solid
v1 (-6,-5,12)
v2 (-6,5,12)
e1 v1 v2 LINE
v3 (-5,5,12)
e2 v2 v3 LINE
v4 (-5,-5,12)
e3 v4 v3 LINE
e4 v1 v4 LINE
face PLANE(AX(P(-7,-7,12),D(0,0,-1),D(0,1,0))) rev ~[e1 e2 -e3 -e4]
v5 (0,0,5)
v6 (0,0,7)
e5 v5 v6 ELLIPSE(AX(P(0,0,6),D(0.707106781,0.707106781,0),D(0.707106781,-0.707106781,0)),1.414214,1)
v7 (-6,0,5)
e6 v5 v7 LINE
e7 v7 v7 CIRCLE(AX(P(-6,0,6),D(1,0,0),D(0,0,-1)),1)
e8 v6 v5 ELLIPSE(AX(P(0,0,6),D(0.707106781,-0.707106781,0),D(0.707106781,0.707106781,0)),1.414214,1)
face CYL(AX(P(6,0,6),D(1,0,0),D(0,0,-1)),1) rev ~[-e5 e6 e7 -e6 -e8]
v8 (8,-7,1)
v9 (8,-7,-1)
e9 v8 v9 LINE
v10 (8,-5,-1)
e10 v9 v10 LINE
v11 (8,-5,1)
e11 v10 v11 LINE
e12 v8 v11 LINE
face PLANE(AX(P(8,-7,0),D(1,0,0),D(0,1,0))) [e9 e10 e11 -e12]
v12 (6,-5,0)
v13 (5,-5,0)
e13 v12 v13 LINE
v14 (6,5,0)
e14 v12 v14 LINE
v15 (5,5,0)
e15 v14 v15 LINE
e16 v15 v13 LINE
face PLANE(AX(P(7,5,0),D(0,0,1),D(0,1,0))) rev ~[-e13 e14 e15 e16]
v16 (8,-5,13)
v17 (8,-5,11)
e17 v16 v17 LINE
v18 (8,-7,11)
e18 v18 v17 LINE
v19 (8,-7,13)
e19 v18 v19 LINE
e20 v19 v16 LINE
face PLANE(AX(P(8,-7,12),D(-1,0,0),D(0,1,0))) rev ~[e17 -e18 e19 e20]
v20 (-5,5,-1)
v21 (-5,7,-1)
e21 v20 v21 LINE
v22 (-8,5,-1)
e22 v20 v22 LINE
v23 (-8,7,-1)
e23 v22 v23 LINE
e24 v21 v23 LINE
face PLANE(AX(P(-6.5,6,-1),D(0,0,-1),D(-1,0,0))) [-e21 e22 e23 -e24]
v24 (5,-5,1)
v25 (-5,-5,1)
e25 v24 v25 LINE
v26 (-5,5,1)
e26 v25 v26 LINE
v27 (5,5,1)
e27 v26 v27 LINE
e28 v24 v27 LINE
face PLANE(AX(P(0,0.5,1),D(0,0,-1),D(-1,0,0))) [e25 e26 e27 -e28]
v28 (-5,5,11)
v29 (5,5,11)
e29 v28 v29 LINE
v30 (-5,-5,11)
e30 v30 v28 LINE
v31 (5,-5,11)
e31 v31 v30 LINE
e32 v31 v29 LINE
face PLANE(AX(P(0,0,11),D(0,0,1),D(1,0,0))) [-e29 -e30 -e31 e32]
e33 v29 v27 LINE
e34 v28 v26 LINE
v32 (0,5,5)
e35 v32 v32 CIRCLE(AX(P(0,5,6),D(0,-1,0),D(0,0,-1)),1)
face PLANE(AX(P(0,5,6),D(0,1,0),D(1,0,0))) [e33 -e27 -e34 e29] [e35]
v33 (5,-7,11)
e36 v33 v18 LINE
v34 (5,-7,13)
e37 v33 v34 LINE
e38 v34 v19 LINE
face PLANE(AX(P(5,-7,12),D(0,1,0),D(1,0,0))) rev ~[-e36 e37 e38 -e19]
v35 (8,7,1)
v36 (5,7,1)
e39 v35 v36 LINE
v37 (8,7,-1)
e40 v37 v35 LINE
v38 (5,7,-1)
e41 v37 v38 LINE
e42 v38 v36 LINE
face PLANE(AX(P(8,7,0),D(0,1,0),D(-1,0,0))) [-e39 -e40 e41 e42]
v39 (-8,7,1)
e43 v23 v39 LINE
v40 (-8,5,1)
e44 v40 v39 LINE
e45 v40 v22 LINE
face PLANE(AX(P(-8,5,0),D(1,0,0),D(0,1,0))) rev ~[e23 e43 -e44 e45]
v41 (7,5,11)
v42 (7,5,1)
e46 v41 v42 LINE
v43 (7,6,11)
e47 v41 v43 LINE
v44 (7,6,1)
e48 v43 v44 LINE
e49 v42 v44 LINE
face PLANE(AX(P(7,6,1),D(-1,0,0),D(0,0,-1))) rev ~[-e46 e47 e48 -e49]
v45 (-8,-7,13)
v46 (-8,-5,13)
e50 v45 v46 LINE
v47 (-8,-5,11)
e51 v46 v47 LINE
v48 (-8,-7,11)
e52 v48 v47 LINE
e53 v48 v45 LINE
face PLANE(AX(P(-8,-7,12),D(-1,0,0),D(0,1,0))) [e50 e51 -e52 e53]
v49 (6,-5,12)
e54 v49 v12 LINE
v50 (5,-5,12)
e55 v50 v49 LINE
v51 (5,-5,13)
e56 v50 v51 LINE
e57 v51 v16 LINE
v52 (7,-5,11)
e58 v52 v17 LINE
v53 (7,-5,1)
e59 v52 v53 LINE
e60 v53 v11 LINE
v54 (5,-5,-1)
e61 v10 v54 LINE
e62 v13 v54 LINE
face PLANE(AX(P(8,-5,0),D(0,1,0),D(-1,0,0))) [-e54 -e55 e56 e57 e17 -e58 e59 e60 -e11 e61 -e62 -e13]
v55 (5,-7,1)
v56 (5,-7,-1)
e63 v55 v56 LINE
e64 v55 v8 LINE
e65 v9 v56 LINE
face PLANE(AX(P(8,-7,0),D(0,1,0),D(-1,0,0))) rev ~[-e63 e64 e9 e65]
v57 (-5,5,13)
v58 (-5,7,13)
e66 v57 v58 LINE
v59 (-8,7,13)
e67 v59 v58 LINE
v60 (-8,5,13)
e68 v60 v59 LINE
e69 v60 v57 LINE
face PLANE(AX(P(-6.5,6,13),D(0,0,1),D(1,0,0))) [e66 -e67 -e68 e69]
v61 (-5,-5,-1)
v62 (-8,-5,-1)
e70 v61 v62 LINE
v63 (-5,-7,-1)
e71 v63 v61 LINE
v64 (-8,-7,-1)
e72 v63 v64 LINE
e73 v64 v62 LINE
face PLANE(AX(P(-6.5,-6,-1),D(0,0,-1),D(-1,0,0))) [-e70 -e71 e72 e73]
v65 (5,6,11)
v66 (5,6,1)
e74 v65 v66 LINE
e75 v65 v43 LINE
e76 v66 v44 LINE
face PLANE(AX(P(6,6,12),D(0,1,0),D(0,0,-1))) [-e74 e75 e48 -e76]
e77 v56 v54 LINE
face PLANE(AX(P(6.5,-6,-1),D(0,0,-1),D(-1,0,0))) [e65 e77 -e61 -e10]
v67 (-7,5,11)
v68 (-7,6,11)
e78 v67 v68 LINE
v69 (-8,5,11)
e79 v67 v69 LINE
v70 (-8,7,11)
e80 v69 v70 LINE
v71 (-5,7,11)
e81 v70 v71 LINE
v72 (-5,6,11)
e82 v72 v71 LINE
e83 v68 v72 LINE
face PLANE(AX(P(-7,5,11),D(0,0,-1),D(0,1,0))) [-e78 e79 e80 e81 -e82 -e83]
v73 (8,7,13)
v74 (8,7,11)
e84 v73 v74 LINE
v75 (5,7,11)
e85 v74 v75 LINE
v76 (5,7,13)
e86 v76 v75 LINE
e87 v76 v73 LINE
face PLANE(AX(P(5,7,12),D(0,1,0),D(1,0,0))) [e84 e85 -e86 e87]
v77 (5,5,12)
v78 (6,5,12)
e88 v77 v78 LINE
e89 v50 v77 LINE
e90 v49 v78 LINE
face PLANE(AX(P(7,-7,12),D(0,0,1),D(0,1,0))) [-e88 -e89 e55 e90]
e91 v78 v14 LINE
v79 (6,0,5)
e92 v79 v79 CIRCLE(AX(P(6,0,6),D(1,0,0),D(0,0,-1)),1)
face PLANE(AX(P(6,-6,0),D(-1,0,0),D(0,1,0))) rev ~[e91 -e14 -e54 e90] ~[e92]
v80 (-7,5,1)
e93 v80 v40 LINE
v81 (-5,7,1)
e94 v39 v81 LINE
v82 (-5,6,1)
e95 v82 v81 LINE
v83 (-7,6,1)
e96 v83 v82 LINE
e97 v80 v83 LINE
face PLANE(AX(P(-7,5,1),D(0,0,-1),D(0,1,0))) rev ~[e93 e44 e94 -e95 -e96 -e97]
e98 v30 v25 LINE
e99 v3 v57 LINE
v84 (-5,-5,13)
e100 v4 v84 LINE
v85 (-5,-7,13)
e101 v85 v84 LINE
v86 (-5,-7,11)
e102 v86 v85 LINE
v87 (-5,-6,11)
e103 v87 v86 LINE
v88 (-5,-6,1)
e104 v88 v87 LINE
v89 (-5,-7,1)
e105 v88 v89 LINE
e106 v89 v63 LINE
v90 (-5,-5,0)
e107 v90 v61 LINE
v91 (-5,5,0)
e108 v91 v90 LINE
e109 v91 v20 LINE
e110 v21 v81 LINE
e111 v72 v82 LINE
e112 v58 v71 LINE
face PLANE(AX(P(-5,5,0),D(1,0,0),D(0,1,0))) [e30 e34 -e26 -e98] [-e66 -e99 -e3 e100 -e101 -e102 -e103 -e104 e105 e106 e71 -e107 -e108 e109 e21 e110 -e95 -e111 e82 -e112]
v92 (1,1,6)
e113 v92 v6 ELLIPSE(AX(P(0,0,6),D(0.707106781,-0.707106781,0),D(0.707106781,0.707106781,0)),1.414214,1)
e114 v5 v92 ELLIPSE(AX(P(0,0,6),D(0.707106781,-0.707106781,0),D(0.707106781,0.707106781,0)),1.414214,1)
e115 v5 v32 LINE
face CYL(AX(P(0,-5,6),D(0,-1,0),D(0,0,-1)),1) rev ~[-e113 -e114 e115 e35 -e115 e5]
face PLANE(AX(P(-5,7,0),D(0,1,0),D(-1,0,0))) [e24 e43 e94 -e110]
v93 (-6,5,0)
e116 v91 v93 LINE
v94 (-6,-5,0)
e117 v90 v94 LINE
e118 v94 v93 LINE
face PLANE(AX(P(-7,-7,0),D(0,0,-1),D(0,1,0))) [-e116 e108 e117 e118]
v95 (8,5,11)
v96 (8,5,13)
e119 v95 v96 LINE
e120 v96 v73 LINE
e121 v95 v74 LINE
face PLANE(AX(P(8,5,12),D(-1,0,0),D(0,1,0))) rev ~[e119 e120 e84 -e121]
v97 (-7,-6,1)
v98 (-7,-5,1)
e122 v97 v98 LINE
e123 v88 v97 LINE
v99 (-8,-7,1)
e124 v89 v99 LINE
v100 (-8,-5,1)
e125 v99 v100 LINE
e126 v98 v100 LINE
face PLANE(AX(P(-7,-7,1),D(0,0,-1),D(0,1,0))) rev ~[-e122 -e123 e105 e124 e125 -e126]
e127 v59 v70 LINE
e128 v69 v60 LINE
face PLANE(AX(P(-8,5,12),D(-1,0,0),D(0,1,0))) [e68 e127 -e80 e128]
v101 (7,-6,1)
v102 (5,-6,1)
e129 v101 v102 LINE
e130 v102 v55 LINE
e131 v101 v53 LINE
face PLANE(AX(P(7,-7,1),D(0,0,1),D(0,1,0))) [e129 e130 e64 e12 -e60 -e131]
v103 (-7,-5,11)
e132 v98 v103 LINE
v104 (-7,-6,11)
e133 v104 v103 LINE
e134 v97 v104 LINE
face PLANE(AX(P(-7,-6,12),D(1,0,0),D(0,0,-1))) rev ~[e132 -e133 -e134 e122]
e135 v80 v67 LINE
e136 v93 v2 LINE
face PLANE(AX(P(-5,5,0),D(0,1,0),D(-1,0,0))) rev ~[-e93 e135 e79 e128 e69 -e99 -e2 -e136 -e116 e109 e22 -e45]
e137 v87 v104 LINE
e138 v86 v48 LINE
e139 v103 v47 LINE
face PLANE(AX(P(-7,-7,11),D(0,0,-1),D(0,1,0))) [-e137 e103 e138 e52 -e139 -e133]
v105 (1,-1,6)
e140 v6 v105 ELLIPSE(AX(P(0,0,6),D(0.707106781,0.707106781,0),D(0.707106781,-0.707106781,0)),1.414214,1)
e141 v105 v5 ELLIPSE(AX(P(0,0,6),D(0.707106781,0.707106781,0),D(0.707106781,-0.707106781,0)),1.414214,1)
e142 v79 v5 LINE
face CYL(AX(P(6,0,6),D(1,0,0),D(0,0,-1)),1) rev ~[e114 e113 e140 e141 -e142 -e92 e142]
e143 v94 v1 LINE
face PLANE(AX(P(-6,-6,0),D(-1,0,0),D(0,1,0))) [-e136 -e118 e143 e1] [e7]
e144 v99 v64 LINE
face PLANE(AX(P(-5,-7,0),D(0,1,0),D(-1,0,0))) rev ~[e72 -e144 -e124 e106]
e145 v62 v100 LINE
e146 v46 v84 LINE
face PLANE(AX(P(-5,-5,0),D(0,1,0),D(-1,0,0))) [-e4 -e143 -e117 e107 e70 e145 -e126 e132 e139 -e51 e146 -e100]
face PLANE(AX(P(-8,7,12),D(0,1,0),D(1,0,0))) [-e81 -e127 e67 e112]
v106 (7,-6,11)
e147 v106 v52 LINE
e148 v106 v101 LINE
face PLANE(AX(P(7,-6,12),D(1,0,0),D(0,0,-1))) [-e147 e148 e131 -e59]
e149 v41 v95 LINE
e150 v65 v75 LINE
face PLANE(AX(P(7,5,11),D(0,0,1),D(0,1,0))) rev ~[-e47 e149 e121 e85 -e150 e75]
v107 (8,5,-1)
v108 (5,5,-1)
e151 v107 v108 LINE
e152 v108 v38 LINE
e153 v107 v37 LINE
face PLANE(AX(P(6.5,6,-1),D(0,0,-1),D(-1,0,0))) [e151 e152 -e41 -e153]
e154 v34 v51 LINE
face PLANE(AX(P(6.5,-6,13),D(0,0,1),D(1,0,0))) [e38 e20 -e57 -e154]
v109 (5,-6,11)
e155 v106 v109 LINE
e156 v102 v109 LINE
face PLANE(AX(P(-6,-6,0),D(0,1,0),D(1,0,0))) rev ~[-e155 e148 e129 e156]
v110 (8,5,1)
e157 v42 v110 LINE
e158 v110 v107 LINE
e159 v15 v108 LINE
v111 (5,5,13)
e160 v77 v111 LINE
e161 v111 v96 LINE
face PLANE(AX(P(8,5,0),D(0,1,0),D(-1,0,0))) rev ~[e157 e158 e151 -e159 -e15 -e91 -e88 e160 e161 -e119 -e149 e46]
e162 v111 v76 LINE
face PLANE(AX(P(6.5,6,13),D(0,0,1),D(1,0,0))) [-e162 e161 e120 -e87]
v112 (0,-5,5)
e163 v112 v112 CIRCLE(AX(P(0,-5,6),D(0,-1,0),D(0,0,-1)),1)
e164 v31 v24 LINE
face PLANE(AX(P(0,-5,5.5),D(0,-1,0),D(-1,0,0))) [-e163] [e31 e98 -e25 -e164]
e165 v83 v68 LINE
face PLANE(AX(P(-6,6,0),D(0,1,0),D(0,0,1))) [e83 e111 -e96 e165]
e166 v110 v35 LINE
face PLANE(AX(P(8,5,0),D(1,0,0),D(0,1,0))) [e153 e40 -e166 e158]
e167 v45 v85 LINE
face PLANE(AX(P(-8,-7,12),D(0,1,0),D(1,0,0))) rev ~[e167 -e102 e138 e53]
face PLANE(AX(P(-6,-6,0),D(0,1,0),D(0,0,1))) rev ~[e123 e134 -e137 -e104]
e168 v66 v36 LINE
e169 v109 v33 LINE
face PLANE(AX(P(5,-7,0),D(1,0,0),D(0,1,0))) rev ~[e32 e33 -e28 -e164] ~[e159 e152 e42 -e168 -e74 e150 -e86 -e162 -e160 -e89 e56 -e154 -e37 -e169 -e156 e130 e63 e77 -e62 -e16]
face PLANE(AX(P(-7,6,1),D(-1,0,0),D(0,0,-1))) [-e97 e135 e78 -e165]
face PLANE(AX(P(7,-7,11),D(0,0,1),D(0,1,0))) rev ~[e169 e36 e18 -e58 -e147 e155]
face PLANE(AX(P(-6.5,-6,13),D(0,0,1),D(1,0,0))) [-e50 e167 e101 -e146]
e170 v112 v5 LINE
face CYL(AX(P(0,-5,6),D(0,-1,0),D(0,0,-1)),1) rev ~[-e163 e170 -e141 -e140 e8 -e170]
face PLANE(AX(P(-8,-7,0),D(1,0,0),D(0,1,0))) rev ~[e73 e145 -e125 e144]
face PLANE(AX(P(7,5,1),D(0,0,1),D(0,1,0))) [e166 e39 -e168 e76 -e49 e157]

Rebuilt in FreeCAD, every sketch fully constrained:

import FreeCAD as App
import Part
import Sketcher
Q = App.Units.Quantity


def add_polygon(sketch, points):
    """Adds a closed chain of lines whose ends are joined by coincident constraints."""
    first, n = sketch.GeometryCount, len(points)
    for a, b in zip(points, points[1:] + points[:1]):
        sketch.addGeometry(Part.LineSegment(App.Vector(*a, 0), App.Vector(*b, 0)), False)
    for i in range(n):
        sketch.addConstraint(Sketcher.Constraint("Coincident", first + i, 2, first + (i + 1) % n, 1))

doc = App.newDocument("Part")
body = doc.addObject("PartDesign::Body", "Body")

# Sketch on XY plane
sketch1 = body.newObject("Sketcher::SketchObject", "Sketch")
sketch1.AttachmentSupport = (doc.getObject("XY_Plane"), [""])
sketch1.MapMode = "FlatFace"
add_polygon(sketch1, [(-6, 6), (-6, -6), (6, -6), (6, 6)])  # lines 0-3
sketch1.addConstraint(Sketcher.Constraint("Vertical", 0))
sketch1.addConstraint(Sketcher.Constraint("Horizontal", 1))
sketch1.addConstraint(Sketcher.Constraint("Vertical", 2))
sketch1.addConstraint(Sketcher.Constraint("Horizontal", 3))
sketch1.addConstraint(Sketcher.Constraint("Symmetric", 0, 2, 2, 2, -1, 1))
sketch1.addConstraint(Sketcher.Constraint("Equal", 3, 0))
sketch1.addConstraint(Sketcher.Constraint("DistanceX", 1, 1, 1, 2, Q("12 mm")))
pad1 = body.newObject("PartDesign::Pad", "Pad")
pad1.Profile = sketch1
pad1.Length = 12

# Sketch on XY plane
sketch2 = body.newObject("Sketcher::SketchObject", "Sketch001")
sketch2.AttachmentSupport = (doc.getObject("XY_Plane"), [""])
sketch2.MapMode = "FlatFace"
sketch2.AttachmentOffset = App.Placement(App.Vector(0, 0, 12), App.Rotation())
add_polygon(sketch2, [(-5, 6), (-5, -6), (5, -6), (5, 6)])  # lines 0-3
sketch2.addConstraint(Sketcher.Constraint("Vertical", 0))
sketch2.addConstraint(Sketcher.Constraint("Horizontal", 1))
sketch2.addConstraint(Sketcher.Constraint("Vertical", 2))
sketch2.addConstraint(Sketcher.Constraint("Horizontal", 3))
sketch2.addConstraint(Sketcher.Constraint("Symmetric", 0, 2, 2, 2, -1, 1))
sketch2.addConstraint(Sketcher.Constraint("DistanceX", 1, 1, 1, 2, Q("10 mm")))
sketch2.addConstraint(Sketcher.Constraint("DistanceY", 0, 2, 0, 1, Q("12 mm")))
pocket1 = body.newObject("PartDesign::Pocket", "Pocket")
pocket1.Profile = sketch2
pocket1.Length = 1

# Sketch on XZ plane
sketch3 = body.newObject("Sketcher::SketchObject", "Sketch002")
sketch3.AttachmentSupport = (doc.getObject("XZ_Plane"), [""])
sketch3.MapMode = "FlatFace"
sketch3.AttachmentOffset = App.Placement(App.Vector(0, 0, 6), App.Rotation())
add_polygon(sketch3, [(5, 0), (5, 11), (-5, 11), (-5, 0)])  # lines 0-3
sketch3.addConstraint(Sketcher.Constraint("Vertical", 0))
sketch3.addConstraint(Sketcher.Constraint("Horizontal", 1))
sketch3.addConstraint(Sketcher.Constraint("Vertical", 2))
sketch3.addConstraint(Sketcher.Constraint("Horizontal", 3))
sketch3.addConstraint(Sketcher.Constraint("Symmetric", 2, 2, 3, 2, -1, 1))
sketch3.addConstraint(Sketcher.Constraint("DistanceX", 1, 2, 1, 1, Q("10 mm")))
sketch3.addConstraint(Sketcher.Constraint("DistanceY", 0, 1, 0, 2, Q("11 mm")))
pocket2 = body.newObject("PartDesign::Pocket", "Pocket001")
pocket2.Profile = sketch3
pocket2.Length = 1

# Sketch on XY plane
sketch4 = body.newObject("Sketcher::SketchObject", "Sketch003")
sketch4.AttachmentSupport = (doc.getObject("XY_Plane"), [""])
sketch4.MapMode = "FlatFace"
add_polygon(sketch4, [(5, 6), (5, -5), (-5, -5), (-5, 6)])  # lines 0-3
sketch4.addConstraint(Sketcher.Constraint("Vertical", 0))
sketch4.addConstraint(Sketcher.Constraint("Horizontal", 1))
sketch4.addConstraint(Sketcher.Constraint("Vertical", 2))
sketch4.addConstraint(Sketcher.Constraint("Horizontal", 3))
sketch4.addConstraint(Sketcher.Constraint("DistanceX", 1, 2, 1, 1, Q("10 mm")))
sketch4.addConstraint(Sketcher.Constraint("DistanceY", 0, 2, 0, 1, Q("11 mm")))
sketch4.addConstraint(Sketcher.Constraint("DistanceX", -1, 1, 0, 2, Q("5 mm")))
sketch4.addConstraint(Sketcher.Constraint("DistanceY", 0, 2, -1, 1, Q("5 mm")))
pocket3 = body.newObject("PartDesign::Pocket", "Pocket002")
pocket3.Profile = sketch4
pocket3.Length = 1
pocket3.Reversed = True

# Sketch on XZ plane
sketch5 = body.newObject("Sketcher::SketchObject", "Sketch004")
sketch5.AttachmentSupport = (doc.getObject("XZ_Plane"), [""])
sketch5.MapMode = "FlatFace"
sketch5.AttachmentOffset = App.Placement(App.Vector(0, 0, -6), App.Rotation())
add_polygon(sketch5, [(-5, 1), (-5, 11), (5, 11), (5, 1)])  # lines 0-3
sketch5.addConstraint(Sketcher.Constraint("Vertical", 0))
sketch5.addConstraint(Sketcher.Constraint("Horizontal", 1))
sketch5.addConstraint(Sketcher.Constraint("Vertical", 2))
sketch5.addConstraint(Sketcher.Constraint("Horizontal", 3))
sketch5.addConstraint(Sketcher.Constraint("Equal", 3, 0))
sketch5.addConstraint(Sketcher.Constraint("DistanceX", 1, 1, 1, 2, Q("10 mm")))
sketch5.addConstraint(Sketcher.Constraint("DistanceX", 0, 2, -1, 1, Q("5 mm")))
sketch5.addConstraint(Sketcher.Constraint("DistanceY", -1, 1, 0, 2, Q("11 mm")))
pocket4 = body.newObject("PartDesign::Pocket", "Pocket003")
pocket4.Profile = sketch5
pocket4.Length = 1
pocket4.Reversed = True

# Sketch on YZ plane
sketch6 = body.newObject("Sketcher::SketchObject", "Sketch005")
sketch6.AttachmentSupport = (doc.getObject("YZ_Plane"), [""])
sketch6.MapMode = "FlatFace"
sketch6.AttachmentOffset = App.Placement(App.Vector(0, 0, -6), App.Rotation())
add_polygon(sketch6, [(-5, 0), (-6, 0), (-6, 12), (-5, 12)])  # lines 0-3
sketch6.addConstraint(Sketcher.Constraint("Horizontal", 0))
sketch6.addConstraint(Sketcher.Constraint("Vertical", 1))
sketch6.addConstraint(Sketcher.Constraint("Horizontal", 2))
sketch6.addConstraint(Sketcher.Constraint("Vertical", 3))
sketch6.addConstraint(Sketcher.Constraint("PointOnObject", 0, 2, -1))
sketch6.addConstraint(Sketcher.Constraint("DistanceX", 0, 2, 0, 1, Q("1 mm")))
sketch6.addConstraint(Sketcher.Constraint("DistanceY", 1, 1, 1, 2, Q("12 mm")))
sketch6.addConstraint(Sketcher.Constraint("DistanceX", 0, 2, -1, 1, Q("6 mm")))
pad2 = body.newObject("PartDesign::Pad", "Pad001")
pad2.Profile = sketch6
pad2.Length = 1
pad2.Reversed = True

# Sketch on YZ plane
sketch7 = body.newObject("Sketcher::SketchObject", "Sketch006")
sketch7.AttachmentSupport = (doc.getObject("YZ_Plane"), [""])
sketch7.MapMode = "FlatFace"
sketch7.AttachmentOffset = App.Placement(App.Vector(0, 0, -6), App.Rotation())
add_polygon(sketch7, [(6, 0), (5, 0), (5, 12), (6, 12)])  # lines 0-3
sketch7.addConstraint(Sketcher.Constraint("Horizontal", 0))
sketch7.addConstraint(Sketcher.Constraint("Vertical", 1))
sketch7.addConstraint(Sketcher.Constraint("Horizontal", 2))
sketch7.addConstraint(Sketcher.Constraint("Vertical", 3))
sketch7.addConstraint(Sketcher.Constraint("PointOnObject", 0, 2, -1))
sketch7.addConstraint(Sketcher.Constraint("DistanceX", 0, 2, 0, 1, Q("1 mm")))
sketch7.addConstraint(Sketcher.Constraint("DistanceY", 1, 1, 1, 2, Q("12 mm")))
sketch7.addConstraint(Sketcher.Constraint("DistanceX", -1, 1, 0, 2, Q("5 mm")))
pad3 = body.newObject("PartDesign::Pad", "Pad002")
pad3.Profile = sketch7
pad3.Length = 1
pad3.Reversed = True

# Sketch on YZ plane
sketch8 = body.newObject("Sketcher::SketchObject", "Sketch007")
sketch8.AttachmentSupport = (doc.getObject("YZ_Plane"), [""])
sketch8.MapMode = "FlatFace"
sketch8.AttachmentOffset = App.Placement(App.Vector(0, 0, 6), App.Rotation())
add_polygon(sketch8, [(6, 12), (5, 12), (5, 0), (6, 0)])  # lines 0-3
add_polygon(sketch8, [(-5, 12), (-6, 12), (-6, 0), (-5, 0)])  # lines 4-7
sketch8.addConstraint(Sketcher.Constraint("Horizontal", 0))
sketch8.addConstraint(Sketcher.Constraint("Vertical", 1))
sketch8.addConstraint(Sketcher.Constraint("Horizontal", 2))
sketch8.addConstraint(Sketcher.Constraint("Vertical", 3))
sketch8.addConstraint(Sketcher.Constraint("Horizontal", 4))
sketch8.addConstraint(Sketcher.Constraint("Vertical", 5))
sketch8.addConstraint(Sketcher.Constraint("Horizontal", 6))
sketch8.addConstraint(Sketcher.Constraint("Vertical", 7))
sketch8.addConstraint(Sketcher.Constraint("Symmetric", 2, 2, 5, 2, -1, 1))
sketch8.addConstraint(Sketcher.Constraint("Symmetric", 1, 2, 6, 2, -2))
sketch8.addConstraint(Sketcher.Constraint("Horizontal", 3, 2, 4, 2))
sketch8.addConstraint(Sketcher.Constraint("DistanceX", 0, 2, 0, 1, Q("1 mm")))
sketch8.addConstraint(Sketcher.Constraint("DistanceY", 1, 2, 1, 1, Q("12 mm")))
sketch8.addConstraint(Sketcher.Constraint("DistanceX", -1, 1, 0, 2, Q("5 mm")))
pad4 = body.newObject("PartDesign::Pad", "Pad003")
pad4.Profile = sketch8
pad4.Length = 1

# Sketch on XZ plane
sketch9 = body.newObject("Sketcher::SketchObject", "Sketch008")
sketch9.AttachmentSupport = (doc.getObject("XZ_Plane"), [""])
sketch9.MapMode = "FlatFace"
sketch9.AttachmentOffset = App.Placement(App.Vector(0, 0, 6), App.Rotation())
add_polygon(sketch9, [(7, 0), (7, 1), (5, 1), (5, 0)])  # lines 0-3
sketch9.addConstraint(Sketcher.Constraint("Vertical", 0))
sketch9.addConstraint(Sketcher.Constraint("Horizontal", 1))
sketch9.addConstraint(Sketcher.Constraint("Vertical", 2))
sketch9.addConstraint(Sketcher.Constraint("Horizontal", 3))
sketch9.addConstraint(Sketcher.Constraint("PointOnObject", 2, 2, -1))
sketch9.addConstraint(Sketcher.Constraint("DistanceX", 1, 2, 1, 1, Q("2 mm")))
sketch9.addConstraint(Sketcher.Constraint("DistanceY", 0, 1, 0, 2, Q("1 mm")))
sketch9.addConstraint(Sketcher.Constraint("DistanceX", -1, 1, 0, 2, Q("7 mm")))
pad5 = body.newObject("PartDesign::Pad", "Pad004")
pad5.Profile = sketch9
pad5.Length = 1

# Sketch on XZ plane
sketch10 = body.newObject("Sketcher::SketchObject", "Sketch009")
sketch10.AttachmentSupport = (doc.getObject("XZ_Plane"), [""])
sketch10.MapMode = "FlatFace"
sketch10.AttachmentOffset = App.Placement(App.Vector(0, 0, 6), App.Rotation())
add_polygon(sketch10, [(7, 11), (7, 12), (5, 12), (5, 11)])  # lines 0-3
sketch10.addConstraint(Sketcher.Constraint("Vertical", 0))
sketch10.addConstraint(Sketcher.Constraint("Horizontal", 1))
sketch10.addConstraint(Sketcher.Constraint("Vertical", 2))
sketch10.addConstraint(Sketcher.Constraint("Horizontal", 3))
sketch10.addConstraint(Sketcher.Constraint("DistanceX", 1, 2, 1, 1, Q("2 mm")))
sketch10.addConstraint(Sketcher.Constraint("DistanceY", 0, 1, 0, 2, Q("1 mm")))
sketch10.addConstraint(Sketcher.Constraint("DistanceX", -1, 1, 0, 2, Q("7 mm")))
sketch10.addConstraint(Sketcher.Constraint("DistanceY", -1, 1, 0, 2, Q("12 mm")))
pad6 = body.newObject("PartDesign::Pad", "Pad005")
pad6.Profile = sketch10
pad6.Length = 1

# Sketch on XZ plane
sketch11 = body.newObject("Sketcher::SketchObject", "Sketch010")
sketch11.AttachmentSupport = (doc.getObject("XZ_Plane"), [""])
sketch11.MapMode = "FlatFace"
sketch11.AttachmentOffset = App.Placement(App.Vector(0, 0, 6), App.Rotation())
add_polygon(sketch11, [(-5, 0), (-5, 1), (-7, 1), (-7, 0)])  # lines 0-3
sketch11.addConstraint(Sketcher.Constraint("Vertical", 0))
sketch11.addConstraint(Sketcher.Constraint("Horizontal", 1))
sketch11.addConstraint(Sketcher.Constraint("Vertical", 2))
sketch11.addConstraint(Sketcher.Constraint("Horizontal", 3))
sketch11.addConstraint(Sketcher.Constraint("PointOnObject", 2, 2, -1))
sketch11.addConstraint(Sketcher.Constraint("DistanceX", 1, 2, 1, 1, Q("2 mm")))
sketch11.addConstraint(Sketcher.Constraint("DistanceY", 0, 1, 0, 2, Q("1 mm")))
sketch11.addConstraint(Sketcher.Constraint("DistanceX", 0, 2, -1, 1, Q("5 mm")))
pad7 = body.newObject("PartDesign::Pad", "Pad006")
pad7.Profile = sketch11
pad7.Length = 1

# Sketch on XZ plane
sketch12 = body.newObject("Sketcher::SketchObject", "Sketch011")
sketch12.AttachmentSupport = (doc.getObject("XZ_Plane"), [""])
sketch12.MapMode = "FlatFace"
sketch12.AttachmentOffset = App.Placement(App.Vector(0, 0, 6), App.Rotation())
add_polygon(sketch12, [(-5, 11), (-5, 12), (-7, 12), (-7, 11)])  # lines 0-3
sketch12.addConstraint(Sketcher.Constraint("Vertical", 0))
sketch12.addConstraint(Sketcher.Constraint("Horizontal", 1))
sketch12.addConstraint(Sketcher.Constraint("Vertical", 2))
sketch12.addConstraint(Sketcher.Constraint("Horizontal", 3))
sketch12.addConstraint(Sketcher.Constraint("DistanceX", 1, 2, 1, 1, Q("2 mm")))
sketch12.addConstraint(Sketcher.Constraint("DistanceY", 0, 1, 0, 2, Q("1 mm")))
sketch12.addConstraint(Sketcher.Constraint("DistanceX", 0, 2, -1, 1, Q("5 mm")))
sketch12.addConstraint(Sketcher.Constraint("DistanceY", -1, 1, 0, 2, Q("12 mm")))
pad8 = body.newObject("PartDesign::Pad", "Pad007")
pad8.Profile = sketch12
pad8.Length = 1

# Sketch on XZ plane
sketch13 = body.newObject("Sketcher::SketchObject", "Sketch012")
sketch13.AttachmentSupport = (doc.getObject("XZ_Plane"), [""])
sketch13.MapMode = "FlatFace"
sketch13.AttachmentOffset = App.Placement(App.Vector(0, 0, -6), App.Rotation())
add_polygon(sketch13, [(5, 11), (5, 12), (7, 12), (7, 11)])  # lines 0-3
sketch13.addConstraint(Sketcher.Constraint("Vertical", 0))
sketch13.addConstraint(Sketcher.Constraint("Horizontal", 1))
sketch13.addConstraint(Sketcher.Constraint("Vertical", 2))
sketch13.addConstraint(Sketcher.Constraint("Horizontal", 3))
sketch13.addConstraint(Sketcher.Constraint("DistanceX", 1, 1, 1, 2, Q("2 mm")))
sketch13.addConstraint(Sketcher.Constraint("DistanceY", 0, 1, 0, 2, Q("1 mm")))
sketch13.addConstraint(Sketcher.Constraint("DistanceX", -1, 1, 0, 2, Q("5 mm")))
sketch13.addConstraint(Sketcher.Constraint("DistanceY", -1, 1, 0, 2, Q("12 mm")))
pad9 = body.newObject("PartDesign::Pad", "Pad008")
pad9.Profile = sketch13
pad9.Length = 1
pad9.Reversed = True

# Sketch on XZ plane
sketch14 = body.newObject("Sketcher::SketchObject", "Sketch013")
sketch14.AttachmentSupport = (doc.getObject("XZ_Plane"), [""])
sketch14.MapMode = "FlatFace"
sketch14.AttachmentOffset = App.Placement(App.Vector(0, 0, -6), App.Rotation())
add_polygon(sketch14, [(-7, 11), (-7, 12), (-5, 12), (-5, 11)])  # lines 0-3
sketch14.addConstraint(Sketcher.Constraint("Vertical", 0))
sketch14.addConstraint(Sketcher.Constraint("Horizontal", 1))
sketch14.addConstraint(Sketcher.Constraint("Vertical", 2))
sketch14.addConstraint(Sketcher.Constraint("Horizontal", 3))
sketch14.addConstraint(Sketcher.Constraint("DistanceX", 1, 1, 1, 2, Q("2 mm")))
sketch14.addConstraint(Sketcher.Constraint("DistanceY", 0, 1, 0, 2, Q("1 mm")))
sketch14.addConstraint(Sketcher.Constraint("DistanceX", 0, 2, -1, 1, Q("7 mm")))
sketch14.addConstraint(Sketcher.Constraint("DistanceY", -1, 1, 0, 2, Q("12 mm")))
pad10 = body.newObject("PartDesign::Pad", "Pad009")
pad10.Profile = sketch14
pad10.Length = 1
pad10.Reversed = True

# Sketch on XZ plane
sketch15 = body.newObject("Sketcher::SketchObject", "Sketch014")
sketch15.AttachmentSupport = (doc.getObject("XZ_Plane"), [""])
sketch15.MapMode = "FlatFace"
sketch15.AttachmentOffset = App.Placement(App.Vector(0, 0, -6), App.Rotation())
add_polygon(sketch15, [(5, 0), (5, 1), (7, 1), (7, 0)])  # lines 0-3
sketch15.addConstraint(Sketcher.Constraint("Vertical", 0))
sketch15.addConstraint(Sketcher.Constraint("Horizontal", 1))
sketch15.addConstraint(Sketcher.Constraint("Vertical", 2))
sketch15.addConstraint(Sketcher.Constraint("Horizontal", 3))
sketch15.addConstraint(Sketcher.Constraint("PointOnObject", 2, 2, -1))
sketch15.addConstraint(Sketcher.Constraint("DistanceX", 1, 1, 1, 2, Q("2 mm")))
sketch15.addConstraint(Sketcher.Constraint("DistanceY", 0, 1, 0, 2, Q("1 mm")))
sketch15.addConstraint(Sketcher.Constraint("DistanceX", -1, 1, 0, 2, Q("5 mm")))
pad11 = body.newObject("PartDesign::Pad", "Pad010")
pad11.Profile = sketch15
pad11.Length = 1
pad11.Reversed = True

# Sketch on XZ plane
sketch16 = body.newObject("Sketcher::SketchObject", "Sketch015")
sketch16.AttachmentSupport = (doc.getObject("XZ_Plane"), [""])
sketch16.MapMode = "FlatFace"
sketch16.AttachmentOffset = App.Placement(App.Vector(0, 0, -6), App.Rotation())
add_polygon(sketch16, [(-7, 0), (-7, 1), (-5, 1), (-5, 0)])  # lines 0-3
sketch16.addConstraint(Sketcher.Constraint("Vertical", 0))
sketch16.addConstraint(Sketcher.Constraint("Horizontal", 1))
sketch16.addConstraint(Sketcher.Constraint("Vertical", 2))
sketch16.addConstraint(Sketcher.Constraint("Horizontal", 3))
sketch16.addConstraint(Sketcher.Constraint("PointOnObject", 2, 2, -1))
sketch16.addConstraint(Sketcher.Constraint("DistanceX", 1, 1, 1, 2, Q("2 mm")))
sketch16.addConstraint(Sketcher.Constraint("DistanceY", 0, 1, 0, 2, Q("1 mm")))
sketch16.addConstraint(Sketcher.Constraint("DistanceX", 0, 2, -1, 1, Q("7 mm")))
pad12 = body.newObject("PartDesign::Pad", "Pad011")
pad12.Profile = sketch16
pad12.Length = 1
pad12.Reversed = True

# Sketch on YZ plane
sketch17 = body.newObject("Sketcher::SketchObject", "Sketch016")
sketch17.AttachmentSupport = (doc.getObject("YZ_Plane"), [""])
sketch17.MapMode = "FlatFace"
sketch17.AttachmentOffset = App.Placement(App.Vector(0, 0, 7), App.Rotation())
add_polygon(sketch17, [(7, 12), (5, 12), (5, 11), (7, 11)])  # lines 0-3
sketch17.addConstraint(Sketcher.Constraint("Horizontal", 0))
sketch17.addConstraint(Sketcher.Constraint("Vertical", 1))
sketch17.addConstraint(Sketcher.Constraint("Horizontal", 2))
sketch17.addConstraint(Sketcher.Constraint("Vertical", 3))
sketch17.addConstraint(Sketcher.Constraint("DistanceX", 0, 2, 0, 1, Q("2 mm")))
sketch17.addConstraint(Sketcher.Constraint("DistanceY", 1, 2, 1, 1, Q("1 mm")))
sketch17.addConstraint(Sketcher.Constraint("DistanceX", -1, 1, 0, 2, Q("5 mm")))
sketch17.addConstraint(Sketcher.Constraint("DistanceY", -1, 1, 0, 2, Q("12 mm")))
pad13 = body.newObject("PartDesign::Pad", "Pad012")
pad13.Profile = sketch17
pad13.Length = 1

# Sketch on XY plane
sketch18 = body.newObject("Sketcher::SketchObject", "Sketch017")
sketch18.AttachmentSupport = (doc.getObject("XY_Plane"), [""])
sketch18.MapMode = "FlatFace"
sketch18.AttachmentOffset = App.Placement(App.Vector(0, 0, 12), App.Rotation())
add_polygon(sketch18, [(5, 7), (5, 5), (8, 5), (8, 7)])  # lines 0-3
sketch18.addConstraint(Sketcher.Constraint("Vertical", 0))
sketch18.addConstraint(Sketcher.Constraint("Horizontal", 1))
sketch18.addConstraint(Sketcher.Constraint("Vertical", 2))
sketch18.addConstraint(Sketcher.Constraint("Horizontal", 3))
sketch18.addConstraint(Sketcher.Constraint("DistanceX", 1, 1, 1, 2, Q("3 mm")))
sketch18.addConstraint(Sketcher.Constraint("DistanceY", 0, 2, 0, 1, Q("2 mm")))
sketch18.addConstraint(Sketcher.Constraint("DistanceX", -1, 1, 0, 2, Q("5 mm")))
sketch18.addConstraint(Sketcher.Constraint("DistanceY", -1, 1, 0, 2, Q("5 mm")))
pad14 = body.newObject("PartDesign::Pad", "Pad013")
pad14.Profile = sketch18
pad14.Length = 1

# Sketch on YZ plane
sketch19 = body.newObject("Sketcher::SketchObject", "Sketch018")
sketch19.AttachmentSupport = (doc.getObject("YZ_Plane"), [""])
sketch19.MapMode = "FlatFace"
sketch19.AttachmentOffset = App.Placement(App.Vector(0, 0, 7), App.Rotation())
add_polygon(sketch19, [(-5, 12), (-7, 12), (-7, 11), (-5, 11)])  # lines 0-3
sketch19.addConstraint(Sketcher.Constraint("Horizontal", 0))
sketch19.addConstraint(Sketcher.Constraint("Vertical", 1))
sketch19.addConstraint(Sketcher.Constraint("Horizontal", 2))
sketch19.addConstraint(Sketcher.Constraint("Vertical", 3))
sketch19.addConstraint(Sketcher.Constraint("DistanceX", 0, 2, 0, 1, Q("2 mm")))
sketch19.addConstraint(Sketcher.Constraint("DistanceY", 1, 2, 1, 1, Q("1 mm")))
sketch19.addConstraint(Sketcher.Constraint("DistanceX", 0, 2, -1, 1, Q("7 mm")))
sketch19.addConstraint(Sketcher.Constraint("DistanceY", -1, 1, 0, 2, Q("12 mm")))
pad15 = body.newObject("PartDesign::Pad", "Pad014")
pad15.Profile = sketch19
pad15.Length = 1

# Sketch on YZ plane
sketch20 = body.newObject("Sketcher::SketchObject", "Sketch019")
sketch20.AttachmentSupport = (doc.getObject("YZ_Plane"), [""])
sketch20.MapMode = "FlatFace"
sketch20.AttachmentOffset = App.Placement(App.Vector(0, 0, 7), App.Rotation())
add_polygon(sketch20, [(-5, 1), (-7, 1), (-7, 0), (-5, 0)])  # lines 0-3
sketch20.addConstraint(Sketcher.Constraint("Horizontal", 0))
sketch20.addConstraint(Sketcher.Constraint("Vertical", 1))
sketch20.addConstraint(Sketcher.Constraint("Horizontal", 2))
sketch20.addConstraint(Sketcher.Constraint("Vertical", 3))
sketch20.addConstraint(Sketcher.Constraint("PointOnObject", 1, 2, -1))
sketch20.addConstraint(Sketcher.Constraint("DistanceX", 0, 2, 0, 1, Q("2 mm")))
sketch20.addConstraint(Sketcher.Constraint("DistanceY", 1, 2, 1, 1, Q("1 mm")))
sketch20.addConstraint(Sketcher.Constraint("DistanceX", 0, 2, -1, 1, Q("7 mm")))
pad16 = body.newObject("PartDesign::Pad", "Pad015")
pad16.Profile = sketch20
pad16.Length = 1

# Sketch on YZ plane
sketch21 = body.newObject("Sketcher::SketchObject", "Sketch020")
sketch21.AttachmentSupport = (doc.getObject("YZ_Plane"), [""])
sketch21.MapMode = "FlatFace"
sketch21.AttachmentOffset = App.Placement(App.Vector(0, 0, 7), App.Rotation())
add_polygon(sketch21, [(7, 1), (5, 1), (5, 0), (7, 0)])  # lines 0-3
sketch21.addConstraint(Sketcher.Constraint("Horizontal", 0))
sketch21.addConstraint(Sketcher.Constraint("Vertical", 1))
sketch21.addConstraint(Sketcher.Constraint("Horizontal", 2))
sketch21.addConstraint(Sketcher.Constraint("Vertical", 3))
sketch21.addConstraint(Sketcher.Constraint("PointOnObject", 1, 2, -1))
sketch21.addConstraint(Sketcher.Constraint("DistanceX", 0, 2, 0, 1, Q("2 mm")))
sketch21.addConstraint(Sketcher.Constraint("DistanceY", 1, 2, 1, 1, Q("1 mm")))
sketch21.addConstraint(Sketcher.Constraint("DistanceX", -1, 1, 0, 2, Q("5 mm")))
pad17 = body.newObject("PartDesign::Pad", "Pad016")
pad17.Profile = sketch21
pad17.Length = 1

# Sketch on YZ plane
sketch22 = body.newObject("Sketcher::SketchObject", "Sketch021")
sketch22.AttachmentSupport = (doc.getObject("YZ_Plane"), [""])
sketch22.MapMode = "FlatFace"
sketch22.AttachmentOffset = App.Placement(App.Vector(0, 0, -7), App.Rotation())
add_polygon(sketch22, [(7, 0), (5, 0), (5, 1), (7, 1)])  # lines 0-3
sketch22.addConstraint(Sketcher.Constraint("Horizontal", 0))
sketch22.addConstraint(Sketcher.Constraint("Vertical", 1))
sketch22.addConstraint(Sketcher.Constraint("Horizontal", 2))
sketch22.addConstraint(Sketcher.Constraint("Vertical", 3))
sketch22.addConstraint(Sketcher.Constraint("PointOnObject", 0, 2, -1))
sketch22.addConstraint(Sketcher.Constraint("DistanceX", 0, 2, 0, 1, Q("2 mm")))
sketch22.addConstraint(Sketcher.Constraint("DistanceY", 1, 1, 1, 2, Q("1 mm")))
sketch22.addConstraint(Sketcher.Constraint("DistanceX", -1, 1, 0, 2, Q("5 mm")))
pad18 = body.newObject("PartDesign::Pad", "Pad017")
pad18.Profile = sketch22
pad18.Length = 1
pad18.Reversed = True

# Sketch on YZ plane
sketch23 = body.newObject("Sketcher::SketchObject", "Sketch022")
sketch23.AttachmentSupport = (doc.getObject("YZ_Plane"), [""])
sketch23.MapMode = "FlatFace"
sketch23.AttachmentOffset = App.Placement(App.Vector(0, 0, -7), App.Rotation())
add_polygon(sketch23, [(7, 11), (5, 11), (5, 12), (7, 12)])  # lines 0-3
sketch23.addConstraint(Sketcher.Constraint("Horizontal", 0))
sketch23.addConstraint(Sketcher.Constraint("Vertical", 1))
sketch23.addConstraint(Sketcher.Constraint("Horizontal", 2))
sketch23.addConstraint(Sketcher.Constraint("Vertical", 3))
sketch23.addConstraint(Sketcher.Constraint("DistanceX", 0, 2, 0, 1, Q("2 mm")))
sketch23.addConstraint(Sketcher.Constraint("DistanceY", 1, 1, 1, 2, Q("1 mm")))
sketch23.addConstraint(Sketcher.Constraint("DistanceX", -1, 1, 0, 2, Q("5 mm")))
sketch23.addConstraint(Sketcher.Constraint("DistanceY", -1, 1, 0, 2, Q("11 mm")))
pad19 = body.newObject("PartDesign::Pad", "Pad018")
pad19.Profile = sketch23
pad19.Length = 1
pad19.Reversed = True

# Sketch on YZ plane
sketch24 = body.newObject("Sketcher::SketchObject", "Sketch023")
sketch24.AttachmentSupport = (doc.getObject("YZ_Plane"), [""])
sketch24.MapMode = "FlatFace"
sketch24.AttachmentOffset = App.Placement(App.Vector(0, 0, -7), App.Rotation())
add_polygon(sketch24, [(-5, 0), (-7, 0), (-7, 1), (-5, 1)])  # lines 0-3
sketch24.addConstraint(Sketcher.Constraint("Horizontal", 0))
sketch24.addConstraint(Sketcher.Constraint("Vertical", 1))
sketch24.addConstraint(Sketcher.Constraint("Horizontal", 2))
sketch24.addConstraint(Sketcher.Constraint("Vertical", 3))
sketch24.addConstraint(Sketcher.Constraint("PointOnObject", 0, 2, -1))
sketch24.addConstraint(Sketcher.Constraint("DistanceX", 0, 2, 0, 1, Q("2 mm")))
sketch24.addConstraint(Sketcher.Constraint("DistanceY", 1, 1, 1, 2, Q("1 mm")))
sketch24.addConstraint(Sketcher.Constraint("DistanceX", 0, 2, -1, 1, Q("7 mm")))
pad20 = body.newObject("PartDesign::Pad", "Pad019")
pad20.Profile = sketch24
pad20.Length = 1
pad20.Reversed = True

# Sketch on YZ plane
sketch25 = body.newObject("Sketcher::SketchObject", "Sketch024")
sketch25.AttachmentSupport = (doc.getObject("YZ_Plane"), [""])
sketch25.MapMode = "FlatFace"
sketch25.AttachmentOffset = App.Placement(App.Vector(0, 0, -7), App.Rotation())
add_polygon(sketch25, [(-5, 11), (-7, 11), (-7, 12), (-5, 12)])  # lines 0-3
sketch25.addConstraint(Sketcher.Constraint("Horizontal", 0))
sketch25.addConstraint(Sketcher.Constraint("Vertical", 1))
sketch25.addConstraint(Sketcher.Constraint("Horizontal", 2))
sketch25.addConstraint(Sketcher.Constraint("Vertical", 3))
sketch25.addConstraint(Sketcher.Constraint("DistanceX", 0, 2, 0, 1, Q("2 mm")))
sketch25.addConstraint(Sketcher.Constraint("DistanceY", 1, 1, 1, 2, Q("1 mm")))
sketch25.addConstraint(Sketcher.Constraint("DistanceX", 0, 2, -1, 1, Q("7 mm")))
sketch25.addConstraint(Sketcher.Constraint("DistanceY", -1, 1, 0, 2, Q("11 mm")))
pad21 = body.newObject("PartDesign::Pad", "Pad020")
pad21.Profile = sketch25
pad21.Length = 1
pad21.Reversed = True

# Sketch on XY plane
sketch26 = body.newObject("Sketcher::SketchObject", "Sketch025")
sketch26.AttachmentSupport = (doc.getObject("XY_Plane"), [""])
sketch26.MapMode = "FlatFace"
sketch26.AttachmentOffset = App.Placement(App.Vector(0, 0, 12), App.Rotation())
add_polygon(sketch26, [(-8, 7), (-8, 5), (-5, 5), (-5, 7)])  # lines 0-3
sketch26.addConstraint(Sketcher.Constraint("Vertical", 0))
sketch26.addConstraint(Sketcher.Constraint("Horizontal", 1))
sketch26.addConstraint(Sketcher.Constraint("Vertical", 2))
sketch26.addConstraint(Sketcher.Constraint("Horizontal", 3))
sketch26.addConstraint(Sketcher.Constraint("DistanceX", 1, 1, 1, 2, Q("3 mm")))
sketch26.addConstraint(Sketcher.Constraint("DistanceY", 0, 2, 0, 1, Q("2 mm")))
sketch26.addConstraint(Sketcher.Constraint("DistanceX", 0, 2, -1, 1, Q("8 mm")))
sketch26.addConstraint(Sketcher.Constraint("DistanceY", -1, 1, 0, 2, Q("5 mm")))
pad22 = body.newObject("PartDesign::Pad", "Pad021")
pad22.Profile = sketch26
pad22.Length = 1

# Sketch on XY plane
sketch27 = body.newObject("Sketcher::SketchObject", "Sketch026")
sketch27.AttachmentSupport = (doc.getObject("XY_Plane"), [""])
sketch27.MapMode = "FlatFace"
sketch27.AttachmentOffset = App.Placement(App.Vector(0, 0, 12), App.Rotation())
add_polygon(sketch27, [(-8, -5), (-8, -7), (-5, -7), (-5, -5)])  # lines 0-3
sketch27.addConstraint(Sketcher.Constraint("Vertical", 0))
sketch27.addConstraint(Sketcher.Constraint("Horizontal", 1))
sketch27.addConstraint(Sketcher.Constraint("Vertical", 2))
sketch27.addConstraint(Sketcher.Constraint("Horizontal", 3))
sketch27.addConstraint(Sketcher.Constraint("DistanceX", 1, 1, 1, 2, Q("3 mm")))
sketch27.addConstraint(Sketcher.Constraint("DistanceY", 0, 2, 0, 1, Q("2 mm")))
sketch27.addConstraint(Sketcher.Constraint("DistanceX", 0, 2, -1, 1, Q("8 mm")))
sketch27.addConstraint(Sketcher.Constraint("DistanceY", 0, 2, -1, 1, Q("7 mm")))
pad23 = body.newObject("PartDesign::Pad", "Pad022")
pad23.Profile = sketch27
pad23.Length = 1

# Sketch on XY plane
sketch28 = body.newObject("Sketcher::SketchObject", "Sketch027")
sketch28.AttachmentSupport = (doc.getObject("XY_Plane"), [""])
sketch28.MapMode = "FlatFace"
sketch28.AttachmentOffset = App.Placement(App.Vector(0, 0, 12), App.Rotation())
add_polygon(sketch28, [(5, -5), (5, -7), (8, -7), (8, -5)])  # lines 0-3
sketch28.addConstraint(Sketcher.Constraint("Vertical", 0))
sketch28.addConstraint(Sketcher.Constraint("Horizontal", 1))
sketch28.addConstraint(Sketcher.Constraint("Vertical", 2))
sketch28.addConstraint(Sketcher.Constraint("Horizontal", 3))
sketch28.addConstraint(Sketcher.Constraint("DistanceX", 1, 1, 1, 2, Q("3 mm")))
sketch28.addConstraint(Sketcher.Constraint("DistanceY", 0, 2, 0, 1, Q("2 mm")))
sketch28.addConstraint(Sketcher.Constraint("DistanceX", -1, 1, 0, 2, Q("5 mm")))
sketch28.addConstraint(Sketcher.Constraint("DistanceY", 0, 2, -1, 1, Q("7 mm")))
pad24 = body.newObject("PartDesign::Pad", "Pad023")
pad24.Profile = sketch28
pad24.Length = 1

# Sketch on XY plane
sketch29 = body.newObject("Sketcher::SketchObject", "Sketch028")
sketch29.AttachmentSupport = (doc.getObject("XY_Plane"), [""])
sketch29.MapMode = "FlatFace"
add_polygon(sketch29, [(8, 7), (8, 5), (5, 5), (5, 7)])  # lines 0-3
sketch29.addConstraint(Sketcher.Constraint("Vertical", 0))
sketch29.addConstraint(Sketcher.Constraint("Horizontal", 1))
sketch29.addConstraint(Sketcher.Constraint("Vertical", 2))
sketch29.addConstraint(Sketcher.Constraint("Horizontal", 3))
sketch29.addConstraint(Sketcher.Constraint("DistanceX", 1, 2, 1, 1, Q("3 mm")))
sketch29.addConstraint(Sketcher.Constraint("DistanceY", 0, 2, 0, 1, Q("2 mm")))
sketch29.addConstraint(Sketcher.Constraint("DistanceX", -1, 1, 0, 2, Q("8 mm")))
sketch29.addConstraint(Sketcher.Constraint("DistanceY", -1, 1, 0, 2, Q("5 mm")))
pad25 = body.newObject("PartDesign::Pad", "Pad024")
pad25.Profile = sketch29
pad25.Length = 1
pad25.Reversed = True

# Sketch on XY plane
sketch30 = body.newObject("Sketcher::SketchObject", "Sketch029")
sketch30.AttachmentSupport = (doc.getObject("XY_Plane"), [""])
sketch30.MapMode = "FlatFace"
add_polygon(sketch30, [(8, -5), (8, -7), (5, -7), (5, -5)])  # lines 0-3
sketch30.addConstraint(Sketcher.Constraint("Vertical", 0))
sketch30.addConstraint(Sketcher.Constraint("Horizontal", 1))
sketch30.addConstraint(Sketcher.Constraint("Vertical", 2))
sketch30.addConstraint(Sketcher.Constraint("Horizontal", 3))
sketch30.addConstraint(Sketcher.Constraint("DistanceX", 1, 2, 1, 1, Q("3 mm")))
sketch30.addConstraint(Sketcher.Constraint("DistanceY", 0, 2, 0, 1, Q("2 mm")))
sketch30.addConstraint(Sketcher.Constraint("DistanceX", -1, 1, 0, 2, Q("8 mm")))
sketch30.addConstraint(Sketcher.Constraint("DistanceY", 0, 2, -1, 1, Q("7 mm")))
pad26 = body.newObject("PartDesign::Pad", "Pad025")
pad26.Profile = sketch30
pad26.Length = 1
pad26.Reversed = True

# Sketch on XY plane
sketch31 = body.newObject("Sketcher::SketchObject", "Sketch030")
sketch31.AttachmentSupport = (doc.getObject("XY_Plane"), [""])
sketch31.MapMode = "FlatFace"
add_polygon(sketch31, [(-5, -5), (-5, -7), (-8, -7), (-8, -5)])  # lines 0-3
sketch31.addConstraint(Sketcher.Constraint("Vertical", 0))
sketch31.addConstraint(Sketcher.Constraint("Horizontal", 1))
sketch31.addConstraint(Sketcher.Constraint("Vertical", 2))
sketch31.addConstraint(Sketcher.Constraint("Horizontal", 3))
sketch31.addConstraint(Sketcher.Constraint("DistanceX", 1, 2, 1, 1, Q("3 mm")))
sketch31.addConstraint(Sketcher.Constraint("DistanceY", 0, 2, 0, 1, Q("2 mm")))
sketch31.addConstraint(Sketcher.Constraint("DistanceX", 0, 2, -1, 1, Q("5 mm")))
sketch31.addConstraint(Sketcher.Constraint("DistanceY", 0, 2, -1, 1, Q("7 mm")))
pad27 = body.newObject("PartDesign::Pad", "Pad026")
pad27.Profile = sketch31
pad27.Length = 1
pad27.Reversed = True

# Sketch on XY plane
sketch32 = body.newObject("Sketcher::SketchObject", "Sketch031")
sketch32.AttachmentSupport = (doc.getObject("XY_Plane"), [""])
sketch32.MapMode = "FlatFace"
add_polygon(sketch32, [(-5, 7), (-5, 5), (-8, 5), (-8, 7)])  # lines 0-3
sketch32.addConstraint(Sketcher.Constraint("Vertical", 0))
sketch32.addConstraint(Sketcher.Constraint("Horizontal", 1))
sketch32.addConstraint(Sketcher.Constraint("Vertical", 2))
sketch32.addConstraint(Sketcher.Constraint("Horizontal", 3))
sketch32.addConstraint(Sketcher.Constraint("DistanceX", 1, 2, 1, 1, Q("3 mm")))
sketch32.addConstraint(Sketcher.Constraint("DistanceY", 0, 2, 0, 1, Q("2 mm")))
sketch32.addConstraint(Sketcher.Constraint("DistanceX", 0, 2, -1, 1, Q("5 mm")))
sketch32.addConstraint(Sketcher.Constraint("DistanceY", -1, 1, 0, 2, Q("5 mm")))
pad28 = body.newObject("PartDesign::Pad", "Pad027")
pad28.Profile = sketch32
pad28.Length = 1
pad28.Reversed = True

# Sketch on YZ plane
sketch33 = body.newObject("Sketcher::SketchObject", "Sketch032")
sketch33.AttachmentSupport = (doc.getObject("YZ_Plane"), [""])
sketch33.MapMode = "FlatFace"
sketch33.AttachmentOffset = App.Placement(App.Vector(0, 0, 6), App.Rotation())
sketch33.addGeometry(Part.Circle(App.Vector(0, 6, 0), App.Vector(0, 0, 1), 1), False)
sketch33.addConstraint(Sketcher.Constraint("PointOnObject", 0, 3, -2))
sketch33.addConstraint(Sketcher.Constraint("Diameter", 0, Q("2 mm")))
sketch33.addConstraint(Sketcher.Constraint("DistanceY", -1, 1, 0, 3, Q("6 mm")))
pocket5 = body.newObject("PartDesign::Pocket", "Pocket004")
pocket5.Profile = sketch33
pocket5.Length = 12

# Sketch on XZ plane
sketch34 = body.newObject("Sketcher::SketchObject", "Sketch033")
sketch34.AttachmentSupport = (doc.getObject("XZ_Plane"), [""])
sketch34.MapMode = "FlatFace"
sketch34.AttachmentOffset = App.Placement(App.Vector(0, 0, 5), App.Rotation())
sketch34.addGeometry(Part.Circle(App.Vector(0, 6, 0), App.Vector(0, 0, 1), 1), False)
sketch34.addConstraint(Sketcher.Constraint("PointOnObject", 0, 3, -2))
sketch34.addConstraint(Sketcher.Constraint("Diameter", 0, Q("2 mm")))
sketch34.addConstraint(Sketcher.Constraint("DistanceY", -1, 1, 0, 3, Q("6 mm")))
pocket6 = body.newObject("PartDesign::Pocket", "Pocket005")
pocket6.Profile = sketch34
pocket6.Length = 12

doc.recompute()
